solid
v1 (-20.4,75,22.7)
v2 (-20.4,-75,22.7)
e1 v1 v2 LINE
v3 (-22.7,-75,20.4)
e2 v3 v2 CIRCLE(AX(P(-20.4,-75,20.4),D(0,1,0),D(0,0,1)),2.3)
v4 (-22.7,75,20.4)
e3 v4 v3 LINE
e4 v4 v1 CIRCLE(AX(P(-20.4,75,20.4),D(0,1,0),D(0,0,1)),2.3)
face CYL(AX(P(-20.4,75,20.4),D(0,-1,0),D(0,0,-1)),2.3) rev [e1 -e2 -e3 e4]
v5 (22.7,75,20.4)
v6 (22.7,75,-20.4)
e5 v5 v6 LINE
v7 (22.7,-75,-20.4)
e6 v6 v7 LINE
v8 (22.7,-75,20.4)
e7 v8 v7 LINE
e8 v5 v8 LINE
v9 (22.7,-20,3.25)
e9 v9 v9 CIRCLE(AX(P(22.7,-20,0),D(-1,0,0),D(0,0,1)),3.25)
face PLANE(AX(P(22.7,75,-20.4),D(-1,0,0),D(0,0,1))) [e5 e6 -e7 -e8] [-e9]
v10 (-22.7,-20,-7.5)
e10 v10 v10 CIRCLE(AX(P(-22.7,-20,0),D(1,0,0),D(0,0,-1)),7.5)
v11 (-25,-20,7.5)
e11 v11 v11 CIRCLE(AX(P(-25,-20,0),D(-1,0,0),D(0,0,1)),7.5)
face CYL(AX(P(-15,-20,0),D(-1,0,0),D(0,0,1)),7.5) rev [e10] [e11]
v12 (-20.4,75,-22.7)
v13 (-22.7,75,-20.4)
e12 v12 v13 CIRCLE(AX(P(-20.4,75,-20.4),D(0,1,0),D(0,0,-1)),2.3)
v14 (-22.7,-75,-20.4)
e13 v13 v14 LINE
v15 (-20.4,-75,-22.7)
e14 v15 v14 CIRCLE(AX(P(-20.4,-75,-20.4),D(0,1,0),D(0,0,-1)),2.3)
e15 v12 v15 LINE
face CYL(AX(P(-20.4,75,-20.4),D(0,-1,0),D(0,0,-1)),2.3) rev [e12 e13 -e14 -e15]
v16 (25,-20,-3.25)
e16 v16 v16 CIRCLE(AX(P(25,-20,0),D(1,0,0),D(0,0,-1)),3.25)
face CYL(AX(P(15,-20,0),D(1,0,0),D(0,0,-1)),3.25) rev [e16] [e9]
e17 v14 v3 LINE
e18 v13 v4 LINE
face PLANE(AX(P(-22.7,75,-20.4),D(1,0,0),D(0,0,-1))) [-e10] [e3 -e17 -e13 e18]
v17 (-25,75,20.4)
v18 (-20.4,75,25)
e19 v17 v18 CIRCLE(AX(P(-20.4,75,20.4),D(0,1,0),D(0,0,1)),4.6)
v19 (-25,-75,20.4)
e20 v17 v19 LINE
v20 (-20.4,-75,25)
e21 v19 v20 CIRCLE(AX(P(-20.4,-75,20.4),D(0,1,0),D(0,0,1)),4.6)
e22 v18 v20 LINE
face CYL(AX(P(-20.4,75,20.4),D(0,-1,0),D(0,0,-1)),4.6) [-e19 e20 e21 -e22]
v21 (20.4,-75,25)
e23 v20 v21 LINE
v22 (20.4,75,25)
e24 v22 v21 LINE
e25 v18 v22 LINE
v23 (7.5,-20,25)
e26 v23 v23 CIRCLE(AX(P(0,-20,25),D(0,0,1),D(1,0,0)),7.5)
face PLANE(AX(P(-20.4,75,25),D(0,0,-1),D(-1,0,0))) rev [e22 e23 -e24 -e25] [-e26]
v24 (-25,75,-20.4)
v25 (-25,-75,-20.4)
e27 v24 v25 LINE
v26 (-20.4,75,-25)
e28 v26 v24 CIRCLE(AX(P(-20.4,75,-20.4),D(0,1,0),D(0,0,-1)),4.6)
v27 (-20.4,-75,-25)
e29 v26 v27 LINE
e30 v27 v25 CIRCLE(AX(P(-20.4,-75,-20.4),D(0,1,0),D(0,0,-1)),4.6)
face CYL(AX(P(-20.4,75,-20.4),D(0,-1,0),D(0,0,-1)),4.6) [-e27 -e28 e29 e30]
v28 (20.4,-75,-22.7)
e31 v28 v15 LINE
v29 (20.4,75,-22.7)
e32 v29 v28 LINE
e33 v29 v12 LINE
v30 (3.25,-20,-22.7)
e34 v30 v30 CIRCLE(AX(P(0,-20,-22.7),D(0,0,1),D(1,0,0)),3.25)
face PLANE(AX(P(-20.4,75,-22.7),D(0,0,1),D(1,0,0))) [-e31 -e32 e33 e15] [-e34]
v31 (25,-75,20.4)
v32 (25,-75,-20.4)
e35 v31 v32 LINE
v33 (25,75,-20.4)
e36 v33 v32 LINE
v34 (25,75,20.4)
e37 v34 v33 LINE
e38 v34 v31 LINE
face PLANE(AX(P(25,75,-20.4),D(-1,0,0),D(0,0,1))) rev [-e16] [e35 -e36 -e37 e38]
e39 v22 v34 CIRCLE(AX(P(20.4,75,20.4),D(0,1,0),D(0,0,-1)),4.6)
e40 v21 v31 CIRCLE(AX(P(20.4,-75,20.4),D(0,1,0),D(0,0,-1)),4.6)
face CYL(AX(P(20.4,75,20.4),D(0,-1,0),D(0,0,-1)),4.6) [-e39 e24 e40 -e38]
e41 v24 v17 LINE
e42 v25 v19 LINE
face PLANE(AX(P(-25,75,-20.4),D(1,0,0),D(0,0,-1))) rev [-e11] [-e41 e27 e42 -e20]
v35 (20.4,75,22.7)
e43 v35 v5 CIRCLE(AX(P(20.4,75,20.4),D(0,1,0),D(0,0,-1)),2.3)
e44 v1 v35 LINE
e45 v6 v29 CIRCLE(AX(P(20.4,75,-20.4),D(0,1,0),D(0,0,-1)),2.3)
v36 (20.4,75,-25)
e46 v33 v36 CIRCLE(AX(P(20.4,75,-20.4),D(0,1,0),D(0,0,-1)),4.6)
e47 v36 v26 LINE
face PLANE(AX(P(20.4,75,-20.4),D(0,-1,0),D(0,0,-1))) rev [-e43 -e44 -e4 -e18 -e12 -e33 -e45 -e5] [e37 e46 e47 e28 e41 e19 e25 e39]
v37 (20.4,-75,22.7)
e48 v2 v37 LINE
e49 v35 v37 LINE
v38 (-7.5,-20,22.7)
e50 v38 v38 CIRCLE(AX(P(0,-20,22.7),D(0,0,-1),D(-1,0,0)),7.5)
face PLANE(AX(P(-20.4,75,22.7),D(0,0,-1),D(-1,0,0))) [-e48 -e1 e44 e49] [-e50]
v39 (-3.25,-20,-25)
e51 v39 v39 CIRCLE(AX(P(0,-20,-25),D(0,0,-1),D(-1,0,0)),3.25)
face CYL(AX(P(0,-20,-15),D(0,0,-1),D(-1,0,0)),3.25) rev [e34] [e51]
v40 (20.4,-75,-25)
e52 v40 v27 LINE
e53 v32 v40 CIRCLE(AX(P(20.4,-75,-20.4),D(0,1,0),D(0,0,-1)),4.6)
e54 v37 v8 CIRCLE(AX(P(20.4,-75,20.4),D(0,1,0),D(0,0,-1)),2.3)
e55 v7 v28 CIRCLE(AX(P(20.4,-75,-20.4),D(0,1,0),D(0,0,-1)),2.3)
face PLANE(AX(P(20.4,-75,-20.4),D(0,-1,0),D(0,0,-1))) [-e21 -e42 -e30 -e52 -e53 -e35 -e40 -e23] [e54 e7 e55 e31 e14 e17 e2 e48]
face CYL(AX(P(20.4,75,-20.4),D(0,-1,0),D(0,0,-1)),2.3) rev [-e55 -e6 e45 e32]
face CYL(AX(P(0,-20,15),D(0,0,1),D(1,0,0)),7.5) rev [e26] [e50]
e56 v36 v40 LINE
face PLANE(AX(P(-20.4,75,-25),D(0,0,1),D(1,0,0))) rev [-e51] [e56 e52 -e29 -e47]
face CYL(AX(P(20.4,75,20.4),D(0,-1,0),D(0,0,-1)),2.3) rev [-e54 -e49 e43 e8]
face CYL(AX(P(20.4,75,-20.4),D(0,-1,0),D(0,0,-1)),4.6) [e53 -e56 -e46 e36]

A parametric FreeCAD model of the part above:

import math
import FreeCAD as App
import Part
import Sketcher

V = App.Vector
Q = App.Units.Quantity

doc = App.newDocument("Part")
body = doc.addObject("PartDesign::Body", "Body")

# Sketch on XZ plane
sketch1 = doc.addObject("Sketcher::SketchObject", "Sketch")
body.addObject(sketch1)
sketch1.AttachmentSupport = (doc.XZ_Plane, [""])
sketch1.MapMode = "FlatFace"
sketch1.AttachmentOffset = App.Placement(V(0, 0, 75), App.Rotation())
sketch1.addGeometry([
    Part.LineSegment(V(-25, -20.4, 0), V(-25, 20.4, 0)),  # 0
    Part.ArcOfCircle(Part.Circle(V(-20.4, 20.4, 0), V(0, 0, 1), 4.6), math.radians(90), math.radians(180)),  # 1
    Part.LineSegment(V(-20.4, 25, 0), V(20.4, 25, 0)),  # 2
    Part.ArcOfCircle(Part.Circle(V(20.4, 20.4, 0), V(0, 0, 1), 4.6), math.radians(0), math.radians(90)),  # 3
    Part.LineSegment(V(25, 20.4, 0), V(25, -20.4, 0)),  # 4
    Part.ArcOfCircle(Part.Circle(V(20.4, -20.4, 0), V(0, 0, 1), 4.6), math.radians(-90), math.radians(0)),  # 5
    Part.LineSegment(V(20.4, -25, 0), V(-20.4, -25, 0)),  # 6
    Part.ArcOfCircle(Part.Circle(V(-20.4, -20.4, 0), V(0, 0, 1), 4.6), math.radians(-180), math.radians(-90)),  # 7
    Part.ArcOfCircle(Part.Circle(V(20.4, -20.4, 0), V(0, 0, 1), 2.3), math.radians(-90), math.radians(0)),  # 8
    Part.LineSegment(V(22.7, -20.4, 0), V(22.7, 20.4, 0)),  # 9
    Part.ArcOfCircle(Part.Circle(V(20.4, 20.4, 0), V(0, 0, 1), 2.3), math.radians(0), math.radians(90)),  # 10
    Part.LineSegment(V(20.4, 22.7, 0), V(-20.4, 22.7, 0)),  # 11
    Part.ArcOfCircle(Part.Circle(V(-20.4, 20.4, 0), V(0, 0, 1), 2.3), math.radians(90), math.radians(180)),  # 12
    Part.LineSegment(V(-22.7, 20.4, 0), V(-22.7, -20.4, 0)),  # 13
    Part.ArcOfCircle(Part.Circle(V(-20.4, -20.4, 0), V(0, 0, 1), 2.3), math.radians(180), math.radians(270)),  # 14
    Part.LineSegment(V(-20.4, -22.7, 0), V(20.4, -22.7, 0)),  # 15
], False)
sketch1.addConstraint([
    Sketcher.Constraint("Tangent", 0, 2, 1, 2),
    Sketcher.Constraint("Tangent", 1, 1, 2, 1),
    Sketcher.Constraint("Tangent", 2, 2, 3, 2),
    Sketcher.Constraint("Tangent", 3, 1, 4, 1),
    Sketcher.Constraint("Tangent", 4, 2, 5, 2),
    Sketcher.Constraint("Tangent", 5, 1, 6, 1),
    Sketcher.Constraint("Tangent", 6, 2, 7, 2),
    Sketcher.Constraint("Tangent", 7, 1, 0, 1),
    Sketcher.Constraint("Tangent", 8, 2, 9, 1),
    Sketcher.Constraint("Tangent", 9, 2, 10, 1),
    Sketcher.Constraint("Tangent", 10, 2, 11, 1),
    Sketcher.Constraint("Tangent", 11, 2, 12, 1),
    Sketcher.Constraint("Tangent", 12, 2, 13, 1),
    Sketcher.Constraint("Tangent", 13, 2, 14, 1),
    Sketcher.Constraint("Tangent", 14, 2, 15, 1),
    Sketcher.Constraint("Tangent", 15, 2, 8, 1),
    Sketcher.Constraint("Vertical", 0),
    Sketcher.Constraint("Horizontal", 2),
    Sketcher.Constraint("Vertical", 4),
    Sketcher.Constraint("Horizontal", 6),
    Sketcher.Constraint("Vertical", 9),
    Sketcher.Constraint("Horizontal", 11),
    Sketcher.Constraint("Vertical", 13),
    Sketcher.Constraint("Horizontal", 15),
    Sketcher.Constraint("Coincident", 8, 3, 5, 3),
    Sketcher.Constraint("Coincident", 10, 3, 3, 3),
    Sketcher.Constraint("Coincident", 12, 3, 1, 3),
    Sketcher.Constraint("Equal", 1, 3),
    Sketcher.Constraint("Equal", 3, 5),
    Sketcher.Constraint("Equal", 5, 7),
    Sketcher.Constraint("Equal", 12, 14),
    Sketcher.Constraint("Symmetric", 1, 3, 5, 3, -1, 1),
    Sketcher.Constraint("Equal", 15, 0),
    Sketcher.Constraint("Radius", 1, Q("4.6 mm")),
    Sketcher.Constraint("Radius", 8, Q("2.3 mm")),
    Sketcher.Constraint("DistanceX", 2, 1, 2, 2, Q("40.8 mm")),
])
pad1 = doc.addObject("PartDesign::Pad", "Pad")
body.addObject(pad1)
pad1.Profile = sketch1
pad1.Length = 150
pad1.Reversed = True

# Sketch on YZ plane
sketch2 = doc.addObject("Sketcher::SketchObject", "Sketch001")
body.addObject(sketch2)
sketch2.AttachmentSupport = (doc.YZ_Plane, [""])
sketch2.MapMode = "FlatFace"
sketch2.AttachmentOffset = App.Placement(V(0, 0, 25), App.Rotation())
sketch2.addGeometry(Part.Circle(V(-20, 0, 0), V(0, 0, 1), 3.2), False)
sketch2.addConstraint([
    Sketcher.Constraint("PointOnObject", 0, 3, -1),
    Sketcher.Constraint("Diameter", 0, Q("6.5 mm")),
    Sketcher.Constraint("DistanceX", 0, 3, -1, 1, Q("20 mm")),
])
pocket1 = doc.addObject("PartDesign::Pocket", "Pocket")
body.addObject(pocket1)
pocket1.Profile = sketch2
pocket1.Length = 10

# Sketch on XY plane
sketch3 = doc.addObject("Sketcher::SketchObject", "Sketch002")
body.addObject(sketch3)
sketch3.AttachmentSupport = (doc.XY_Plane, [""])
sketch3.MapMode = "FlatFace"
sketch3.AttachmentOffset = App.Placement(V(0, 0, -25), App.Rotation())
sketch3.addGeometry(Part.Circle(V(0, -20, 0), V(0, 0, 1), 3.2), False)
sketch3.addConstraint([
    Sketcher.Constraint("PointOnObject", 0, 3, -2),
    Sketcher.Constraint("Diameter", 0, Q("6.5 mm")),
    Sketcher.Constraint("DistanceY", 0, 3, -1, 1, Q("20 mm")),
])
pocket2 = doc.addObject("PartDesign::Pocket", "Pocket001")
body.addObject(pocket2)
pocket2.Profile = sketch3
pocket2.Length = 10
pocket2.Reversed = True

# Sketch on XY plane
sketch4 = doc.addObject("Sketcher::SketchObject", "Sketch003")
body.addObject(sketch4)
sketch4.AttachmentSupport = (doc.XY_Plane, [""])
sketch4.MapMode = "FlatFace"
sketch4.AttachmentOffset = App.Placement(V(0, 0, 25), App.Rotation())
sketch4.addGeometry(Part.Circle(V(0, -20, 0), V(0, 0, 1), 8), False)
sketch4.addConstraint([
    Sketcher.Constraint("PointOnObject", 0, 3, -2),
    Sketcher.Constraint("Diameter", 0, Q("15 mm")),
    Sketcher.Constraint("DistanceY", 0, 3, -1, 1, Q("20 mm")),
])
pocket3 = doc.addObject("PartDesign::Pocket", "Pocket002")
body.addObject(pocket3)
pocket3.Profile = sketch4
pocket3.Length = 10

# Sketch on YZ plane
sketch5 = doc.addObject("Sketcher::SketchObject", "Sketch004")
body.addObject(sketch5)
sketch5.AttachmentSupport = (doc.YZ_Plane, [""])
sketch5.MapMode = "FlatFace"
sketch5.AttachmentOffset = App.Placement(V(0, 0, -25), App.Rotation())
sketch5.addGeometry(Part.Circle(V(-20, 0, 0), V(0, 0, 1), 8), False)
sketch5.addConstraint([
    Sketcher.Constraint("PointOnObject", 0, 3, -1),
    Sketcher.Constraint("Diameter", 0, Q("15 mm")),
    Sketcher.Constraint("DistanceX", 0, 3, -1, 1, Q("20 mm")),
])
pocket4 = doc.addObject("PartDesign::Pocket", "Pocket003")
body.addObject(pocket4)
pocket4.Profile = sketch5
pocket4.Length = 10
pocket4.Reversed = True

doc.recompute()
